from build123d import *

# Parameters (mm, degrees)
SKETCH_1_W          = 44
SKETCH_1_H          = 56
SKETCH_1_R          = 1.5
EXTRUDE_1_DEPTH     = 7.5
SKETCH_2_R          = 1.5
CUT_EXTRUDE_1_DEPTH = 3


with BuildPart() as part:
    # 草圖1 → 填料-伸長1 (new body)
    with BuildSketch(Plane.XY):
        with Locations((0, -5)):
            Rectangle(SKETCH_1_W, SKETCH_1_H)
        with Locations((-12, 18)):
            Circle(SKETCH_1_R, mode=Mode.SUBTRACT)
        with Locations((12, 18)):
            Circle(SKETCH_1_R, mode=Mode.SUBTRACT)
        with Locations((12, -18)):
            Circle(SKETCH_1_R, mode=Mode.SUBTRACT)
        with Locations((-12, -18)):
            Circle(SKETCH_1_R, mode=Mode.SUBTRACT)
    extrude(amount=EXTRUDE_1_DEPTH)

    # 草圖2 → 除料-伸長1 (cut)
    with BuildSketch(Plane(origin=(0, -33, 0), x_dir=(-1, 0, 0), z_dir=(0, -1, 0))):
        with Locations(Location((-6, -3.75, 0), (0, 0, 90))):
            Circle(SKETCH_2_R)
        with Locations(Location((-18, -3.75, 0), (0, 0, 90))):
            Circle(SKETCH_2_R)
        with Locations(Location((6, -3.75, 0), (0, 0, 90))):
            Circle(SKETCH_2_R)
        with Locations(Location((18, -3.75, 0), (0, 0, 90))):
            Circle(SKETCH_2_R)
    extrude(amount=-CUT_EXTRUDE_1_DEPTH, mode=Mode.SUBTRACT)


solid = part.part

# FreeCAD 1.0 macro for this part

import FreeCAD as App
import Part
import Sketcher
from FreeCAD import Vector


def add_polygon(sketch, points):
    """Adds a closed chain of lines whose ends are joined by coincident constraints."""
    first, n = sketch.GeometryCount, len(points)
    for a, b in zip(points, points[1:] + points[:1]):
        sketch.addGeometry(Part.LineSegment(App.Vector(*a, 0), App.Vector(*b, 0)), False)
    for i in range(n):
        sketch.addConstraint(Sketcher.Constraint("Coincident", first + i, 2, first + (i + 1) % n, 1))

doc = App.newDocument("Part")
body = doc.addObject("PartDesign::Body", "Body")

# Sketch on XY plane
sketch1 = body.newObject("Sketcher::SketchObject", "Sketch")
sketch1.AttachmentSupport = (doc.getObject("XY_Plane"), [""])
sketch1.MapMode = "FlatFace"
add_polygon(sketch1, [(-22, 23), (-22, -33), (22, -33), (22, 23)])  # lines 0-3
sketch1.addGeometry(Part.Circle(Vector(-12, -18, 0), Vector(0, 0, 1), 1.5), False)  # 4
sketch1.addGeometry(Part.Circle(Vector(12, -18, 0), Vector(0, 0, 1), 1.5), False)  # 5
sketch1.addGeometry(Part.Circle(Vector(-12, 18, 0), Vector(0, 0, 1), 1.5), False)  # 6
sketch1.addGeometry(Part.Circle(Vector(12, 18, 0), Vector(0, 0, 1), 1.5), False)  # 7
sketch1.addConstraint([
    Sketcher.Constraint("Vertical", 0),
    Sketcher.Constraint("Horizontal", 1),
    Sketcher.Constraint("Vertical", 2),
    Sketcher.Constraint("Horizontal", 3),
    Sketcher.Constraint("Equal", 4, 5),
    Sketcher.Constraint("Equal", 5, 6),
    Sketcher.Constraint("Equal", 6, 7),
    Sketcher.Constraint("Symmetric", 5, 3, 6, 3, -1, 1),
    Sketcher.Constraint("Symmetric", 4, 3, 7, 3, -1, 1),
    Sketcher.Constraint("Symmetric", 4, 3, 5, 3, -2),
    Sketcher.Constraint("Diameter", 4, 3.0),
    Sketcher.Constraint("DistanceX", 1, 1, 1, 2, 44.0),
    Sketcher.Constraint("DistanceY", 0, 2, 0, 1, 56.0),
    Sketcher.Constraint("DistanceX", 4, 3, -1, 1, 12.0),
    Sketcher.Constraint("DistanceY", 4, 3, -1, 1, 18.0),
    Sketcher.Constraint("DistanceX", 0, 2, -1, 1, 22.0),
    Sketcher.Constraint("DistanceY", 0, 2, -1, 1, 33.0),
])
pad1 = body.newObject("PartDesign::Pad", "Pad")
pad1.Profile = sketch1
pad1.Length = 7.5

# Sketch on XZ plane
sketch2 = body.newObject("Sketcher::SketchObject", "Sketch001")
sketch2.AttachmentSupport = (doc.getObject("XZ_Plane"), [""])
sketch2.MapMode = "FlatFace"
sketch2.AttachmentOffset = App.Placement(Vector(0, 0, 33), App.Rotation())
sketch2.addGeometry([
    Part.Circle(Vector(6, 3.8, 0), Vector(0, 0, 1), 1.5),
    Part.Circle(Vector(18, 3.8, 0), Vector(0, 0, 1), 1.5),
    Part.Circle(Vector(-6, 3.8, 0), Vector(0, 0, 1), 1.5),
    Part.Circle(Vector(-18, 3.8, 0), Vector(0, 0, 1), 1.5),
], False)
sketch2.addConstraint([
    Sketcher.Constraint("Equal", 0, 1),
    Sketcher.Constraint("Equal", 1, 2),
    Sketcher.Constraint("Equal", 2, 3),
    Sketcher.Constraint("Symmetric", 0, 3, 2, 3, -2),
    Sketcher.Constraint("Symmetric", 1, 3, 3, 3, -2),
    Sketcher.Constraint("Horizontal", 0, 3, 1, 3),
    Sketcher.Constraint("Diameter", 0, 3.0),
    Sketcher.Constraint("DistanceX", -1, 1, 0, 3, 6.0),
    Sketcher.Constraint("DistanceX", -1, 1, 1, 3, 18.0),
    Sketcher.Constraint("DistanceY", -1, 1, 0, 3, 3.75),
])
pocket1 = body.newObject("PartDesign::Pocket", "Pocket")
pocket1.Profile = sketch2
pocket1.Length = 3

doc.recompute()
